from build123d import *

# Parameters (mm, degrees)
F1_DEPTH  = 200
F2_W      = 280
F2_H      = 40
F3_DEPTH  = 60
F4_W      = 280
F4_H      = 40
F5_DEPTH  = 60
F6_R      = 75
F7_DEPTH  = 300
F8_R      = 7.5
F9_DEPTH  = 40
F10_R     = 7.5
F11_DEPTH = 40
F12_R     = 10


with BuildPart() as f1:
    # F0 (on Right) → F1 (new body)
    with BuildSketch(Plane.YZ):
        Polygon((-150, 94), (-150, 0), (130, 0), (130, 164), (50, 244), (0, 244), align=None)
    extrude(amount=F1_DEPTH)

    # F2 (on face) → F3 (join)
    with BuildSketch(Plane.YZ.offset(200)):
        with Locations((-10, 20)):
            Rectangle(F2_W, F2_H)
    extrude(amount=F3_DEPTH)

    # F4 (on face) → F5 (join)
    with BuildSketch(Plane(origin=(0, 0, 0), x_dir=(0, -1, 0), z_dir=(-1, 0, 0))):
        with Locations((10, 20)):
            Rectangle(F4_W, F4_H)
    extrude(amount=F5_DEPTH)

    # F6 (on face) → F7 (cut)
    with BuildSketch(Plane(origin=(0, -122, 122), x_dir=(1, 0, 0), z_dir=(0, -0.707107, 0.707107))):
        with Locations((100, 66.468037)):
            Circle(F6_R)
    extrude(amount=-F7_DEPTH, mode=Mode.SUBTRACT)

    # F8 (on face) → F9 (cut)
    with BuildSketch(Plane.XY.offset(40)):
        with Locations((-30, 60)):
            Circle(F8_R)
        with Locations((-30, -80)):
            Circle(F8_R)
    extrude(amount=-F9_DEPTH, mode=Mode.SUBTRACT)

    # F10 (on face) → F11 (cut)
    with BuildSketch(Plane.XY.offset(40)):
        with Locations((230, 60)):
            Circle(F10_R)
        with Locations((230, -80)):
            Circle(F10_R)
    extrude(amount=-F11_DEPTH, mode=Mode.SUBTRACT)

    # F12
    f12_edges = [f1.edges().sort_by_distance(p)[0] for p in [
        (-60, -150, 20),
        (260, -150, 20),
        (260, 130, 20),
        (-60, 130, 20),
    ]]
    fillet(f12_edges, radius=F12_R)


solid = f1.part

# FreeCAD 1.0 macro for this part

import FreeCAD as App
import Part
import Sketcher
from FreeCAD import Vector
Q = App.Units.Quantity


def edges_at(feature, points):
    """Names of the edges that pass closest to the given points."""
    edges = feature.Shape.Edges
    near = lambda p: min(range(len(edges)), key=lambda i: edges[i].distToShape(Part.Vertex(*p))[0])
    return sorted({f"Edge{near(p) + 1}" for p in points})

doc = App.newDocument("Part")
body = doc.addObject("PartDesign::Body", "Body")

# Sketch on YZ plane
sketch1 = doc.addObject("Sketcher::SketchObject", "Sketch")
body.addObject(sketch1)
sketch1.AttachmentSupport = (doc.YZ_Plane, [""])
sketch1.MapMode = "FlatFace"
sketch1.addGeometry([
    Part.LineSegment(Vector(-150, 94, 0), Vector(-150, 0, 0)),  # 0
    Part.LineSegment(Vector(-150, 0, 0), Vector(130, 0, 0)),  # 1
    Part.LineSegment(Vector(130, 0, 0), Vector(130, 164, 0)),  # 2
    Part.LineSegment(Vector(130, 164, 0), Vector(50, 244, 0)),  # 3
    Part.LineSegment(Vector(50, 244, 0), Vector(0, 244, 0)),  # 4
    Part.LineSegment(Vector(0, 244, 0), Vector(-150, 94, 0)),  # 5
], False)
sketch1.addConstraint([
    Sketcher.Constraint("Coincident", 0, 2, 1, 1),
    Sketcher.Constraint("Coincident", 1, 2, 2, 1),
    Sketcher.Constraint("Coincident", 2, 2, 3, 1),
    Sketcher.Constraint("Coincident", 3, 2, 4, 1),
    Sketcher.Constraint("Coincident", 4, 2, 5, 1),
    Sketcher.Constraint("Coincident", 5, 2, 0, 1),
    Sketcher.Constraint("Vertical", 0),
    Sketcher.Constraint("Horizontal", 1),
    Sketcher.Constraint("Vertical", 2),
    Sketcher.Constraint("Horizontal", 4),
    Sketcher.Constraint("PointOnObject", 0, 2, -1),
    Sketcher.Constraint("PointOnObject", 4, 2, -2),
    Sketcher.Constraint("Perpendicular", 3, 5),
    Sketcher.Constraint("DistanceX", 1, 1, 1, 2, 280.0),
    Sketcher.Constraint("DistanceX", 4, 2, 4, 1, 50.0),
    Sketcher.Constraint("DistanceY", 0, 2, 0, 1, 94.0),
    Sketcher.Constraint("DistanceY", 2, 1, 2, 2, 164.0),
    Sketcher.Constraint("Angle", 3, Q("135 deg")),
])
pad1 = doc.addObject("PartDesign::Pad", "Pad")
body.addObject(pad1)
pad1.Profile = sketch1
pad1.Length = 200

# Sketch on YZ plane
sketch2 = doc.addObject("Sketcher::SketchObject", "Sketch001")
body.addObject(sketch2)
sketch2.AttachmentSupport = (doc.YZ_Plane, [""])
sketch2.MapMode = "FlatFace"
sketch2.AttachmentOffset = App.Placement(Vector(0, 0, 200), App.Rotation())
sketch2.addGeometry([
    Part.LineSegment(Vector(-150, 40, 0), Vector(-150, 0, 0)),
    Part.LineSegment(Vector(-150, 0, 0), Vector(130, 0, 0)),
    Part.LineSegment(Vector(130, 0, 0), Vector(130, 40, 0)),
    Part.LineSegment(Vector(130, 40, 0), Vector(-150, 40, 0)),
], False)
sketch2.addConstraint([
    Sketcher.Constraint("Coincident", 0, 2, 1, 1),
    Sketcher.Constraint("Coincident", 1, 2, 2, 1),
    Sketcher.Constraint("Coincident", 2, 2, 3, 1),
    Sketcher.Constraint("Coincident", 3, 2, 0, 1),
    Sketcher.Constraint("Vertical", 0),
    Sketcher.Constraint("Horizontal", 1),
    Sketcher.Constraint("Vertical", 2),
    Sketcher.Constraint("Horizontal", 3),
    Sketcher.Constraint("PointOnObject", 0, 2, -1),
    Sketcher.Constraint("DistanceX", 1, 1, 1, 2, 280.0),
    Sketcher.Constraint("DistanceY", 0, 2, 0, 1, 40.0),
    Sketcher.Constraint("DistanceX", 0, 2, -1, 1, 150.0),
])
pad2 = doc.addObject("PartDesign::Pad", "Pad001")
body.addObject(pad2)
pad2.Profile = sketch2
pad2.Length = 60

# Sketch on YZ plane
sketch3 = doc.addObject("Sketcher::SketchObject", "Sketch002")
body.addObject(sketch3)
sketch3.AttachmentSupport = (doc.YZ_Plane, [""])
sketch3.MapMode = "FlatFace"
sketch3.addGeometry([
    Part.LineSegment(Vector(130, 40, 0), Vector(130, 0, 0)),
    Part.LineSegment(Vector(130, 0, 0), Vector(-150, 0, 0)),
    Part.LineSegment(Vector(-150, 0, 0), Vector(-150, 40, 0)),
    Part.LineSegment(Vector(-150, 40, 0), Vector(130, 40, 0)),
], False)
sketch3.addConstraint([
    Sketcher.Constraint("Coincident", 0, 2, 1, 1),
    Sketcher.Constraint("Coincident", 1, 2, 2, 1),
    Sketcher.Constraint("Coincident", 2, 2, 3, 1),
    Sketcher.Constraint("Coincident", 3, 2, 0, 1),
    Sketcher.Constraint("Vertical", 0),
    Sketcher.Constraint("Horizontal", 1),
    Sketcher.Constraint("Vertical", 2),
    Sketcher.Constraint("Horizontal", 3),
    Sketcher.Constraint("PointOnObject", 0, 2, -1),
    Sketcher.Constraint("DistanceX", 1, 2, 1, 1, 280.0),
    Sketcher.Constraint("DistanceY", 0, 2, 0, 1, 40.0),
    Sketcher.Constraint("DistanceX", -1, 1, 0, 2, 130.0),
])
pad3 = doc.addObject("PartDesign::Pad", "Pad002")
body.addObject(pad3)
pad3.Profile = sketch3
pad3.Length = 60
pad3.Reversed = True

# Sketch on an angled plane
sketch4 = doc.addObject("Sketcher::SketchObject", "Sketch003")
body.addObject(sketch4)
sketch4.Placement = App.Placement(Vector(0, -122, 122), App.Rotation(Vector(1, 0, 0), Vector(0, 0.707106781, 0.707106781), Vector(0, -0.707106781, 0.707106781), "ZXY"))
sketch4.addGeometry(Part.Circle(Vector(100, 66.468037, 0), Vector(0, 0, 1), 75), False)
sketch4.addConstraint([
    Sketcher.Constraint("Diameter", 0, 150.0),
    Sketcher.Constraint("DistanceX", -1, 1, 0, 3, 100.0),
    Sketcher.Constraint("DistanceY", -1, 1, 0, 3, 66.468037),
])
pocket1 = doc.addObject("PartDesign::Pocket", "Pocket")
body.addObject(pocket1)
pocket1.Profile = sketch4
pocket1.Length = 300

# Sketch on XY plane
sketch5 = doc.addObject("Sketcher::SketchObject", "Sketch004")
body.addObject(sketch5)
sketch5.AttachmentSupport = (doc.XY_Plane, [""])
sketch5.MapMode = "FlatFace"
sketch5.AttachmentOffset = App.Placement(Vector(0, 0, 40), App.Rotation())
sketch5.addGeometry([
    Part.Circle(Vector(-30, 60, 0), Vector(0, 0, 1), 7.5),
    Part.Circle(Vector(-30, -80, 0), Vector(0, 0, 1), 7.5),
], False)
sketch5.addConstraint([
    Sketcher.Constraint("Equal", 0, 1),
    Sketcher.Constraint("Vertical", 0, 3, 1, 3),
    Sketcher.Constraint("Diameter", 0, 15.0),
    Sketcher.Constraint("DistanceX", 0, 3, -1, 1, 30.0),
    Sketcher.Constraint("DistanceY", -1, 1, 0, 3, 60.0),
    Sketcher.Constraint("DistanceY", 1, 3, -1, 1, 80.0),
])
pocket2 = doc.addObject("PartDesign::Pocket", "Pocket001")
body.addObject(pocket2)
pocket2.Profile = sketch5
pocket2.Length = 40

# Sketch on XY plane
sketch6 = doc.addObject("Sketcher::SketchObject", "Sketch005")
body.addObject(sketch6)
sketch6.AttachmentSupport = (doc.XY_Plane, [""])
sketch6.MapMode = "FlatFace"
sketch6.AttachmentOffset = App.Placement(Vector(0, 0, 40), App.Rotation())
sketch6.addGeometry([
    Part.Circle(Vector(230, 60, 0), Vector(0, 0, 1), 7.5),
    Part.Circle(Vector(230, -80, 0), Vector(0, 0, 1), 7.5),
], False)
sketch6.addConstraint([
    Sketcher.Constraint("Equal", 0, 1),
    Sketcher.Constraint("Vertical", 0, 3, 1, 3),
    Sketcher.Constraint("Diameter", 0, 15.0),
    Sketcher.Constraint("DistanceX", -1, 1, 0, 3, 230.0),
    Sketcher.Constraint("DistanceY", -1, 1, 0, 3, 60.0),
    Sketcher.Constraint("DistanceY", 1, 3, -1, 1, 80.0),
])
pocket3 = doc.addObject("PartDesign::Pocket", "Pocket002")
body.addObject(pocket3)
pocket3.Profile = sketch6
pocket3.Length = 40
doc.recompute()

fillet = doc.addObject("PartDesign::Fillet", "Fillet")
body.addObject(fillet)
fillet.Base = (pocket3, edges_at(pocket3, [
    (-60, -150, 20),
    (260, -150, 20),
    (260, 130, 20),
    (-60, 130, 20),
]))
fillet.Radius = 10

doc.recompute()
